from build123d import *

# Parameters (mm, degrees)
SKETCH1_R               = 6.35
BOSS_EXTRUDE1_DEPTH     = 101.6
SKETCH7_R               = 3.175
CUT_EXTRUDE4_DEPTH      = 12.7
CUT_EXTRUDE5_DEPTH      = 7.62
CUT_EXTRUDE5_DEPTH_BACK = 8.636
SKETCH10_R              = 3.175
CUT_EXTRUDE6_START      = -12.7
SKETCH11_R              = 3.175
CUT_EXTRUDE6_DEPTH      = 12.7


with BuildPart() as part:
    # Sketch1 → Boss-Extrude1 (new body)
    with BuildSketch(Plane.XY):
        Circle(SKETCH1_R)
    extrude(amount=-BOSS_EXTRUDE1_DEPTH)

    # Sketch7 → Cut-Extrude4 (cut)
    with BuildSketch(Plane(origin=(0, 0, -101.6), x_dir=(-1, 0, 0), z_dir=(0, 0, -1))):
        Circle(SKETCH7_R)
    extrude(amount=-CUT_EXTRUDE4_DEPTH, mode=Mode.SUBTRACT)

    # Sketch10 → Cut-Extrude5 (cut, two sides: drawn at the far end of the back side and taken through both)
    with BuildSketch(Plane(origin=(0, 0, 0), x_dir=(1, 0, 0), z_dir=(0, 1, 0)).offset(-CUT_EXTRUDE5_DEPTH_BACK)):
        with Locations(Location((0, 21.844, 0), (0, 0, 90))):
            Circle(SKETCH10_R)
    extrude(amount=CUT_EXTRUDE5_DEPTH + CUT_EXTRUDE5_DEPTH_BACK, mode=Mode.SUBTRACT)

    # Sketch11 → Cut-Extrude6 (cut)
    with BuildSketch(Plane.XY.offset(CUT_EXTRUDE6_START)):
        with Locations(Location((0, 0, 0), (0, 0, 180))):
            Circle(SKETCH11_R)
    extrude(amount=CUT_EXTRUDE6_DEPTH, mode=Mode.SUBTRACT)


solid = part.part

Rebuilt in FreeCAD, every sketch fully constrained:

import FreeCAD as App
import Part
import Sketcher
Q = App.Units.Quantity

doc = App.newDocument("Part")
body = doc.addObject("PartDesign::Body", "Body")

# Sketch on XY plane
sketch1 = doc.addObject("Sketcher::SketchObject", "Sketch")
body.addObject(sketch1)
sketch1.AttachmentSupport = (doc.XY_Plane, [""])
sketch1.MapMode = "FlatFace"
sketch1.addGeometry(Part.Circle(App.Vector(0, 0, 0), App.Vector(0, 0, 1), 6), False)
sketch1.addConstraint([
    Sketcher.Constraint("Coincident", 0, 3, -1, 1),
    Sketcher.Constraint("Diameter", 0, Q("0.5 in")),
])
pad1 = doc.addObject("PartDesign::Pad", "Pad")
body.addObject(pad1)
pad1.Profile = sketch1
pad1.Length = Q("4 in")
pad1.Reversed = True

# Sketch on XY plane
sketch2 = doc.addObject("Sketcher::SketchObject", "Sketch001")
body.addObject(sketch2)
sketch2.AttachmentSupport = (doc.XY_Plane, [""])
sketch2.MapMode = "FlatFace"
sketch2.AttachmentOffset = App.Placement(App.Vector(0, 0, -4 * 25.4), App.Rotation())
sketch2.addGeometry(Part.Circle(App.Vector(0, 0, 0), App.Vector(0, 0, 1), 3.2), False)
sketch2.addConstraint([
    Sketcher.Constraint("Coincident", 0, 3, -1, 1),
    Sketcher.Constraint("Diameter", 0, Q("0.25 in")),
])
pocket1 = doc.addObject("PartDesign::Pocket", "Pocket")
body.addObject(pocket1)
pocket1.Profile = sketch2
pocket1.Length = Q("0.5 in")
pocket1.Reversed = True

# Sketch on XZ plane
sketch3 = doc.addObject("Sketcher::SketchObject", "Sketch002")
body.addObject(sketch3)
sketch3.AttachmentSupport = (doc.XZ_Plane, [""])
sketch3.MapMode = "FlatFace"
sketch3.addGeometry(Part.Circle(App.Vector(0, -21.8, 0), App.Vector(0, 0, 1), 3.2), False)
sketch3.addConstraint([
    Sketcher.Constraint("PointOnObject", 0, 3, -2),
    Sketcher.Constraint("Diameter", 0, Q("0.25 in")),
    Sketcher.Constraint("DistanceY", 0, 3, -1, 1, Q("0.86 in")),
])
pocket2 = doc.addObject("PartDesign::Pocket", "Pocket001")
body.addObject(pocket2)
pocket2.Profile = sketch3
pocket2.Type = "ThroughAll"
pocket2.Midplane = True

# Sketch on XY plane
sketch4 = doc.addObject("Sketcher::SketchObject", "Sketch003")
body.addObject(sketch4)
sketch4.AttachmentSupport = (doc.XY_Plane, [""])
sketch4.MapMode = "FlatFace"
sketch4.AttachmentOffset = App.Placement(App.Vector(0, 0, -0.5 * 25.4), App.Rotation())
sketch4.addGeometry(Part.Circle(App.Vector(0, 0, 0), App.Vector(0, 0, 1), 3.2), False)
sketch4.addConstraint([
    Sketcher.Constraint("Coincident", 0, 3, -1, 1),
    Sketcher.Constraint("Diameter", 0, Q("0.25 in")),
])
pocket3 = doc.addObject("PartDesign::Pocket", "Pocket002")
body.addObject(pocket3)
pocket3.Profile = sketch4
pocket3.Length = Q("0.5 in")
pocket3.Reversed = True

doc.recompute()
